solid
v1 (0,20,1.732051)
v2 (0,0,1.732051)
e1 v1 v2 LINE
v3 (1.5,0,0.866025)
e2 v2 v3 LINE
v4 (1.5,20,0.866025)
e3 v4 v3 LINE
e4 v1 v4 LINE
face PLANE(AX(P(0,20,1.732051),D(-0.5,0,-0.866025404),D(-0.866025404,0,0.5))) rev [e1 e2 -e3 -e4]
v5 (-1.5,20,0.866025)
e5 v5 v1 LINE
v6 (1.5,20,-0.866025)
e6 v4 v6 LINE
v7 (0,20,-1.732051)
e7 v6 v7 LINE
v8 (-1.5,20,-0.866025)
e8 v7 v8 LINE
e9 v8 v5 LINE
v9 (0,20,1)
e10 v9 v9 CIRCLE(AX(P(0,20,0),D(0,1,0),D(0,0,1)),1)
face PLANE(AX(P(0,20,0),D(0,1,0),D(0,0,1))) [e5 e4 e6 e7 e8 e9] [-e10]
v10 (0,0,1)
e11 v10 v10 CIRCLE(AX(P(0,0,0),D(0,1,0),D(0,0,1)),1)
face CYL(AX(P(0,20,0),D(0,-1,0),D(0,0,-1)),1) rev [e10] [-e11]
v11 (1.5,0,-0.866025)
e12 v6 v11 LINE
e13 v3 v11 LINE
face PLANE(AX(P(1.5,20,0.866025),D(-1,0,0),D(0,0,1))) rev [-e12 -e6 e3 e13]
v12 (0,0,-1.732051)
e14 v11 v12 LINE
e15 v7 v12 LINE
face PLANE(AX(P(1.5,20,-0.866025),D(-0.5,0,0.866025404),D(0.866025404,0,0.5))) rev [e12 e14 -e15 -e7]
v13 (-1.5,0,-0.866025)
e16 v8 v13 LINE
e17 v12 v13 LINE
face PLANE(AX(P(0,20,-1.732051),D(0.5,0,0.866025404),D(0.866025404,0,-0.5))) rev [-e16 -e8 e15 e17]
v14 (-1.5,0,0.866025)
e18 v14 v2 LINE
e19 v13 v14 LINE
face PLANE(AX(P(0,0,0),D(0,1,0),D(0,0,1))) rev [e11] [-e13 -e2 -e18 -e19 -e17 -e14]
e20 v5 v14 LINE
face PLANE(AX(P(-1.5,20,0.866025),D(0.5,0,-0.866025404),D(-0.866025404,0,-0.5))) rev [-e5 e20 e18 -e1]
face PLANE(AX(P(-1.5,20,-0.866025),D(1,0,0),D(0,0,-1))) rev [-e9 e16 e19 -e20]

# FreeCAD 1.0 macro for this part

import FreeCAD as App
import Part
import Sketcher
from FreeCAD import Vector
Q = App.Units.Quantity


def add_polygon(sketch, points):
    """Adds a closed chain of lines whose ends are joined by coincident constraints."""
    first, n = sketch.GeometryCount, len(points)
    for a, b in zip(points, points[1:] + points[:1]):
        sketch.addGeometry(Part.LineSegment(App.Vector(*a, 0), App.Vector(*b, 0)), False)
    for i in range(n):
        sketch.addConstraint(Sketcher.Constraint("Coincident", first + i, 2, first + (i + 1) % n, 1))

doc = App.newDocument("Part")
params = doc.addObject("Spreadsheet::Sheet", "Params")
for row, (alias, value) in enumerate([
    ("sketch1_diameter", "2 mm"),
    ("pad1_length", "20 mm"),
], start=1):
    params.set(f"A{row}", alias)
    params.set(f"B{row}", "=" + value)
    params.setAlias(f"B{row}", alias)

body = doc.addObject("PartDesign::Body", "Body")

sketch1 = body.newObject("Sketcher::SketchObject", "Sketch")
sketch1.AttachmentSupport = (doc.getObject("XZ_Plane"), [""])
sketch1.MapMode = "FlatFace"
add_polygon(sketch1, [(0, 1.7), (1.5, 0.9), (1.5, -0.9), (0, -1.7), (-1.5, -0.9), (-1.5, 0.9)])
sketch1.addGeometry(Part.Circle(Vector(0, 0, 0), Vector(0, 0, 1), 1), False)
sketch1.addConstraint(Sketcher.Constraint("Vertical", 1))
sketch1.addConstraint(Sketcher.Constraint("Vertical", 4))
sketch1.addConstraint(Sketcher.Constraint("Coincident", 6, 3, -1, 1))
sketch1.addConstraint(Sketcher.Constraint("Symmetric", 0, 2, 3, 2, -1, 1))
sketch1.addConstraint(Sketcher.Constraint("Symmetric", 2, 2, 5, 2, -1, 1))
sketch1.addConstraint(Sketcher.Constraint("PointOnObject", 2, 2, -2))
sketch1.addConstraint(Sketcher.Constraint("Parallel", 2, 5))
sketch1.addConstraint(Sketcher.Constraint("Horizontal", 1, 2, 3, 2))
sketch1.addConstraint(Sketcher.Constraint("Diameter", 6, 2.0))
sketch1.addConstraint(Sketcher.Constraint("Angle", 0, Q("-30 deg")))
sketch1.addConstraint(Sketcher.Constraint("DistanceX", 3, 2, 1, 2, 3.0))
sketch1.addConstraint(Sketcher.Constraint("DistanceY", 1, 2, 1, 1, 1.732051))
sketch1.setExpression("Constraints[14]", "Params.sketch1_diameter")
pad1 = body.newObject("PartDesign::Pad", "Pad")
pad1.Profile = sketch1
pad1.setExpression("Length", "Params.pad1_length")
pad1.Reversed = True

doc.recompute()
